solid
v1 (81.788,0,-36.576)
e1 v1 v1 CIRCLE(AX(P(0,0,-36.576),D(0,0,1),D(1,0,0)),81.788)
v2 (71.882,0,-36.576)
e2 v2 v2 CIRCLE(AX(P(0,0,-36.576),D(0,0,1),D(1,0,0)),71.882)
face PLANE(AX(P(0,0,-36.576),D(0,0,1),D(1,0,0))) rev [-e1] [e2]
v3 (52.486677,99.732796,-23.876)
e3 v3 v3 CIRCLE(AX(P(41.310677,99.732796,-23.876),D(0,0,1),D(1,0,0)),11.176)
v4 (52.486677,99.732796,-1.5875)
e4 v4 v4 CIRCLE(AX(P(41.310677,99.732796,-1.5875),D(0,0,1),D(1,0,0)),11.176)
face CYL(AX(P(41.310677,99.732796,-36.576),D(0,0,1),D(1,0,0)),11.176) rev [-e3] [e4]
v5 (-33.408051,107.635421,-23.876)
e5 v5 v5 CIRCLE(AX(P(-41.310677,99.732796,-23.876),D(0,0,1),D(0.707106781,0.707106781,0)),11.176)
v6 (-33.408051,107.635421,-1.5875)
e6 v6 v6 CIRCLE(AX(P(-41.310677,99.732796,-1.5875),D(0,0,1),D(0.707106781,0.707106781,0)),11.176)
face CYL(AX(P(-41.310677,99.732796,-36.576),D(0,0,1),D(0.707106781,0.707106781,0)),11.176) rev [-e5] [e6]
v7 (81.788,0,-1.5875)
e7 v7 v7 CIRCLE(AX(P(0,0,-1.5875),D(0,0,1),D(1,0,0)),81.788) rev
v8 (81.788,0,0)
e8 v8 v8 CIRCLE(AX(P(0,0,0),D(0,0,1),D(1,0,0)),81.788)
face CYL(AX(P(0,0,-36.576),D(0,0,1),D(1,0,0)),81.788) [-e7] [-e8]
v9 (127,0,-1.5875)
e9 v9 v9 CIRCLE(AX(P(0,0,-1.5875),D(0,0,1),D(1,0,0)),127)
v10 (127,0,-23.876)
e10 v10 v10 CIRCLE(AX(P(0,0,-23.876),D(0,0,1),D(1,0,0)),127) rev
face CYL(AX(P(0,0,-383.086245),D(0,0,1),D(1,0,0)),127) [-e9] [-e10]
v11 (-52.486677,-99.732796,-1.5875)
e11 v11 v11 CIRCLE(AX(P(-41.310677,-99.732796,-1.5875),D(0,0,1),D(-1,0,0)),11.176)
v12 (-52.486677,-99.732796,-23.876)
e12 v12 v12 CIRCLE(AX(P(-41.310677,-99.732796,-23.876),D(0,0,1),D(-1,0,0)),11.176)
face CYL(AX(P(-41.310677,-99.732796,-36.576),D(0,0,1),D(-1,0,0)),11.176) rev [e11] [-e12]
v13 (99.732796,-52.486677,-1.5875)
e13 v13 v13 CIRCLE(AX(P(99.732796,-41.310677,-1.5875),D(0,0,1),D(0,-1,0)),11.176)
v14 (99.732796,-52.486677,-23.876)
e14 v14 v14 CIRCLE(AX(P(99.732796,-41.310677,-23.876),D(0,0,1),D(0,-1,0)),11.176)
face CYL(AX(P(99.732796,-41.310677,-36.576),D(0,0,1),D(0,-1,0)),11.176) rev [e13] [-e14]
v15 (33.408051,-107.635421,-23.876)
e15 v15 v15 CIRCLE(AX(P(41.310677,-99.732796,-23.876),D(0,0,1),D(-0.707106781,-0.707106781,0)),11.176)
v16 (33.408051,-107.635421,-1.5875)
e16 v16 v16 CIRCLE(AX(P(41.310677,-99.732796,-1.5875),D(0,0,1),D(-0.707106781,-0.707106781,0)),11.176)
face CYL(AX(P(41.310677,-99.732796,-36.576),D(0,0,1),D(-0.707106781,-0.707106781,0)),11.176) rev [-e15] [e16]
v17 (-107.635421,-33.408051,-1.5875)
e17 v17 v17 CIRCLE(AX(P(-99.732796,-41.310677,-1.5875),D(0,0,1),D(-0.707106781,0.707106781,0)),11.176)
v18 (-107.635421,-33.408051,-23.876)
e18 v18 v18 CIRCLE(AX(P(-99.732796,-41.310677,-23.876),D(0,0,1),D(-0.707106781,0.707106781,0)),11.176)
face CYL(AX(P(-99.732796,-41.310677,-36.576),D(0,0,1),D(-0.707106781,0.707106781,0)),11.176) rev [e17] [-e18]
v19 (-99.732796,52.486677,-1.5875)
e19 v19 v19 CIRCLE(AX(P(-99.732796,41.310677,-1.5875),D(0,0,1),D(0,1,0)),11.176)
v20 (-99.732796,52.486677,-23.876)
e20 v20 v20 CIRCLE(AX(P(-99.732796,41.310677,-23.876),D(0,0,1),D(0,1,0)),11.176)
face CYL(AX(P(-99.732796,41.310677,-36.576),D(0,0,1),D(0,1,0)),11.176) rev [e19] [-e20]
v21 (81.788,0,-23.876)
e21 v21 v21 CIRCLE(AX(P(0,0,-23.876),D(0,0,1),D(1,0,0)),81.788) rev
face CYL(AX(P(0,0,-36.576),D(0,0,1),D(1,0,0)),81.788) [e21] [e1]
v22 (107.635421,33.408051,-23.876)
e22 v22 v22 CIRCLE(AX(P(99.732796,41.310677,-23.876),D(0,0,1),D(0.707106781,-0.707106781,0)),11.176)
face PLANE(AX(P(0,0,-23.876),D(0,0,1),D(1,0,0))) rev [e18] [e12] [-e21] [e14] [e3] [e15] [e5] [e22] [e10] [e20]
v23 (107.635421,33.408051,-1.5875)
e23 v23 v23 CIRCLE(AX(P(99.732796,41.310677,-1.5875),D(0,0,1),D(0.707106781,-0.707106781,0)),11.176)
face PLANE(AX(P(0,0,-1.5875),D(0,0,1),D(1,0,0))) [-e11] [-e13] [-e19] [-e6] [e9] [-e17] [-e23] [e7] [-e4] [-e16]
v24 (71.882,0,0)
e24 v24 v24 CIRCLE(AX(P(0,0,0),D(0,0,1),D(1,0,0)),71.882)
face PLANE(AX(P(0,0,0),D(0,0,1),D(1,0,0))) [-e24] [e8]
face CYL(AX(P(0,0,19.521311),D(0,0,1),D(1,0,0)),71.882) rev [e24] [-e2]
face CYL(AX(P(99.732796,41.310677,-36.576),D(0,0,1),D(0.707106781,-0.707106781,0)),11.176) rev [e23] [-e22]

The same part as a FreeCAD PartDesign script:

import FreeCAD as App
import Part
import Sketcher

V = App.Vector
Q = App.Units.Quantity


def add_polygon(sketch, points):
    """Adds a closed chain of lines whose ends are joined by coincident constraints."""
    first, n = sketch.GeometryCount, len(points)
    for a, b in zip(points, points[1:] + points[:1]):
        sketch.addGeometry(Part.LineSegment(App.Vector(*a, 0), App.Vector(*b, 0)), False)
    for i in range(n):
        sketch.addConstraint(Sketcher.Constraint("Coincident", first + i, 2, first + (i + 1) % n, 1))

doc = App.newDocument("Part")
body = doc.addObject("PartDesign::Body", "Body")

# Sketch on XY plane
sketch1 = body.newObject("Sketcher::SketchObject", "Sketch")
sketch1.AttachmentSupport = (doc.getObject("XY_Plane"), [""])
sketch1.MapMode = "FlatFace"
sketch1.addGeometry(Part.Circle(V(0, 0, 0), V(0, 0, 1), 82), False)
sketch1.addConstraint(Sketcher.Constraint("Coincident", 0, 3, -1, 1))
sketch1.addConstraint(Sketcher.Constraint("Diameter", 0, Q("6.44 in")))
pad1 = body.newObject("PartDesign::Pad", "Pad")
pad1.Profile = sketch1
pad1.Length = Q("1.44 in")
pad1.Reversed = True

# Sketch on XY plane
sketch2 = body.newObject("Sketcher::SketchObject", "Sketch001")
sketch2.AttachmentSupport = (doc.getObject("XY_Plane"), [""])
sketch2.MapMode = "FlatFace"
sketch2.AttachmentOffset = App.Placement(V(0, 0, -0.0625 * 25.4), App.Rotation())
sketch2.addGeometry(Part.Circle(V(0, 0, 0), V(0, 0, 1), 127), False)
sketch2.addConstraint(Sketcher.Constraint("Coincident", 0, 3, -1, 1))
sketch2.addConstraint(Sketcher.Constraint("Diameter", 0, Q("10 in")))
pad2 = body.newObject("PartDesign::Pad", "Pad001")
pad2.Profile = sketch2
pad2.Length = Q("0.8775 in")
pad2.Reversed = True

# Sketch on XZ plane
sketch3 = body.newObject("Sketcher::SketchObject", "Sketch002")
sketch3.AttachmentSupport = (doc.getObject("XZ_Plane"), [""])
sketch3.MapMode = "FlatFace"
add_polygon(sketch3, [(0, -229), (0, 0), (72, 0), (72, -229)])  # lines 0-3
sketch3.addConstraint(Sketcher.Constraint("Vertical", 0))
sketch3.addConstraint(Sketcher.Constraint("Horizontal", 1))
sketch3.addConstraint(Sketcher.Constraint("Vertical", 2))
sketch3.addConstraint(Sketcher.Constraint("Horizontal", 3))
sketch3.addConstraint(Sketcher.Constraint("Coincident", 0, 2, -1, 1))
sketch3.addConstraint(Sketcher.Constraint("DistanceY", 0, 1, 0, 2, Q("9 in")))
sketch3.addConstraint(Sketcher.Constraint("DistanceX", 1, 1, 1, 2, Q("2.83 in")))
groove = body.newObject("PartDesign::Groove", "Groove")
groove.Profile = sketch3
groove.ReferenceAxis = (sketch3, ["V_Axis"])
groove.Angle = 360

# Sketch on XY plane
sketch4 = body.newObject("Sketcher::SketchObject", "Sketch003")
sketch4.AttachmentSupport = (doc.getObject("XY_Plane"), [""])
sketch4.MapMode = "FlatFace"
sketch4.AttachmentOffset = App.Placement(V(0, 0, -0.0625 * 25.4), App.Rotation())
sketch4.addGeometry(Part.Circle(V(41, 100, 0), V(0, 0, 1), 11), False)
sketch4.addConstraint(Sketcher.Constraint("Diameter", 0, Q("0.88 in")))
sketch4.addConstraint(Sketcher.Constraint("DistanceX", -1, 1, 0, 3, Q("41.310677 mm")))
sketch4.addConstraint(Sketcher.Constraint("DistanceY", -1, 1, 0, 3, Q("99.732796 mm")))
pocket1 = body.newObject("PartDesign::Pocket", "Pocket")
pocket1.Profile = sketch4
pocket1.Type = "ThroughAll"
doc.recompute()

polarpattern = body.newObject("PartDesign::PolarPattern", "PolarPattern")
polarpattern.Originals = [pocket1]
polarpattern.Axis = (doc.getObject("Z_Axis"), [""])
polarpattern.Angle = 360
polarpattern.Occurrences = 8
body.Tip = polarpattern

doc.recompute()
